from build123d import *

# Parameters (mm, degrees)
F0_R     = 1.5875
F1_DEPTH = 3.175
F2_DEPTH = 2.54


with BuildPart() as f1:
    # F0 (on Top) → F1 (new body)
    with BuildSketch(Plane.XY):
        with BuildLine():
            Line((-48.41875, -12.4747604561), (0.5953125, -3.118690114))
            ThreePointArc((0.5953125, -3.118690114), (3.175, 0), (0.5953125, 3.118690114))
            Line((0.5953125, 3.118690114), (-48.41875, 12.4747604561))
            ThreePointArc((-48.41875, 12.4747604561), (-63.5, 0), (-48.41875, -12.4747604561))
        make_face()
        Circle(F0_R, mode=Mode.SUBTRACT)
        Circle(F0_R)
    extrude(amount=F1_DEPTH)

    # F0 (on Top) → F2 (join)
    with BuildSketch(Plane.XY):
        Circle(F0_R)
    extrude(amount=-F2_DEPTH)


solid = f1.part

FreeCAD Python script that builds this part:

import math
import FreeCAD as App
import Part
import Sketcher

V = App.Vector
Q = App.Units.Quantity

doc = App.newDocument("Part")
body = doc.addObject("PartDesign::Body", "Body")

# Sketch on XY plane
sketch1 = doc.addObject("Sketcher::SketchObject", "Sketch")
body.addObject(sketch1)
sketch1.AttachmentSupport = (doc.XY_Plane, [""])
sketch1.MapMode = "FlatFace"
sketch1.addGeometry(Part.LineSegment(V(-48.4, -12.5, 0), V(0.6, -3.1, 0)), False)
sketch1.addGeometry(Part.ArcOfCircle(Part.Circle(V(0, 0, 0), V(0, 0, 1), 3.2), math.radians(-79), math.radians(79)), False)
sketch1.addGeometry(Part.LineSegment(V(0.6, 3.1, 0), V(-48.4, 12.5, 0)), False)
sketch1.addGeometry(Part.ArcOfCircle(Part.Circle(V(-50.8, 0, 0), V(0, 0, 1), 12.7), math.radians(79), math.radians(281)), False)
sketch1.addConstraint(Sketcher.Constraint("Tangent", 0, 2, 1, 1))
sketch1.addConstraint(Sketcher.Constraint("Tangent", 1, 2, 2, 1))
sketch1.addConstraint(Sketcher.Constraint("Tangent", 2, 2, 3, 1))
sketch1.addConstraint(Sketcher.Constraint("Tangent", 3, 2, 0, 1))
sketch1.addConstraint(Sketcher.Constraint("Coincident", 1, 3, -1, 1))
sketch1.addConstraint(Sketcher.Constraint("PointOnObject", 3, 3, -1))
sketch1.addConstraint(Sketcher.Constraint("Radius", 3, Q("0.5 in")))
sketch1.addConstraint(Sketcher.Constraint("DistanceX", 3, 3, -1, 1, Q("2 in")))
sketch1.addConstraint(Sketcher.Constraint("Radius", 1, Q("0.125 in")))
pad1 = doc.addObject("PartDesign::Pad", "Pad")
body.addObject(pad1)
pad1.Profile = sketch1
pad1.Length = Q("0.125 in")

# Sketch on XY plane
sketch2 = doc.addObject("Sketcher::SketchObject", "Sketch001")
body.addObject(sketch2)
sketch2.AttachmentSupport = (doc.XY_Plane, [""])
sketch2.MapMode = "FlatFace"
sketch2.addGeometry(Part.Circle(V(0, 0, 0), V(0, 0, 1), 1.6), False)
sketch2.addConstraint(Sketcher.Constraint("Coincident", 0, 3, -1, 1))
sketch2.addConstraint(Sketcher.Constraint("Diameter", 0, Q("0.125 in")))
pad2 = doc.addObject("PartDesign::Pad", "Pad001")
body.addObject(pad2)
pad2.Profile = sketch2
pad2.Length = Q("0.1 in")
pad2.Reversed = True

doc.recompute()
